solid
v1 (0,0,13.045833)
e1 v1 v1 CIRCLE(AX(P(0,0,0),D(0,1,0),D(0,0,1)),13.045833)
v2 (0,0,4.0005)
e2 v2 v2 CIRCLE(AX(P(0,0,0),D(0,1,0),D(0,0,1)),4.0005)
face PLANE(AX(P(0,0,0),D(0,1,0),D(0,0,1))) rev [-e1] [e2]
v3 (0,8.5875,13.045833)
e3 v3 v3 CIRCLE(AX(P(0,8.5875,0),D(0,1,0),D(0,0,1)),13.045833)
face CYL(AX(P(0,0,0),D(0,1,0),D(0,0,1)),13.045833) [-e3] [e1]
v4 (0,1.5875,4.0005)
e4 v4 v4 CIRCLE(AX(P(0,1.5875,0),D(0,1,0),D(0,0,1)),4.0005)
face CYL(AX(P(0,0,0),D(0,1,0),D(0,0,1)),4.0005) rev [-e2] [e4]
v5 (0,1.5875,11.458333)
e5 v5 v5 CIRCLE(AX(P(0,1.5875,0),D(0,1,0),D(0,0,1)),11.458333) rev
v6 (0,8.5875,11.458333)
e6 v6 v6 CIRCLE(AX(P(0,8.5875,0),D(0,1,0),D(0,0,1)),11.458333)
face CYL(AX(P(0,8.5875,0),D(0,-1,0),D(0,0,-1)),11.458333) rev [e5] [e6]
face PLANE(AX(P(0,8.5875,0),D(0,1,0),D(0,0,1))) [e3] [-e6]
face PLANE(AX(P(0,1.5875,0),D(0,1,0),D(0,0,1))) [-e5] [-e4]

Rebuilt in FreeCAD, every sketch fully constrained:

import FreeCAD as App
import Part
import Sketcher
from FreeCAD import Vector
Q = App.Units.Quantity

doc = App.newDocument("Part")
params = doc.addObject("Spreadsheet::Sheet", "Params")
for row, (alias, value) in enumerate([
    ("pad1_length", "0.0625 in"),
    ("pad2_length", "0.0625 in"),
    ("pad3_length", "7 mm"),
    ("sketch4_diameter", "0.315 in"),
], start=1):
    params.set(f"A{row}", alias)
    params.set(f"B{row}", "=" + value)
    params.setAlias(f"B{row}", alias)

body = doc.addObject("PartDesign::Body", "Body")

# Sketch on XZ plane
sketch1 = body.newObject("Sketcher::SketchObject", "Sketch")
sketch1.AttachmentSupport = (doc.getObject("XZ_Plane"), [""])
sketch1.MapMode = "FlatFace"
sketch1.addGeometry(Part.Circle(Vector(0, 0, 0), Vector(0, 0, 1), 11), False)
sketch1.addConstraint([
    Sketcher.Constraint("Coincident", 0, 3, -1, 1),
    Sketcher.Constraint("Diameter", 0, 22.916667),
])
pad1 = body.newObject("PartDesign::Pad", "Pad")
pad1.Profile = sketch1
pad1.setExpression("Length", "Params.pad1_length")
pad1.Reversed = True

# Sketch on XZ plane
sketch2 = body.newObject("Sketcher::SketchObject", "Sketch001")
sketch2.AttachmentSupport = (doc.getObject("XZ_Plane"), [""])
sketch2.MapMode = "FlatFace"
sketch2.AttachmentOffset = App.Placement(Vector(0, 0, -0.0625 * 25.4), App.Rotation())
sketch2.addGeometry(Part.Circle(Vector(0, 0, 0), Vector(0, 0, 1), 13), False)
sketch2.addConstraint([
    Sketcher.Constraint("Coincident", 0, 3, -1, 1),
    Sketcher.Constraint("Diameter", 0, 26.091667),
])
pad2 = body.newObject("PartDesign::Pad", "Pad001")
pad2.Profile = sketch2
pad2.setExpression("Length", "Params.pad2_length")

# Sketch on XZ plane
sketch3 = body.newObject("Sketcher::SketchObject", "Sketch002")
sketch3.AttachmentSupport = (doc.getObject("XZ_Plane"), [""])
sketch3.MapMode = "FlatFace"
sketch3.AttachmentOffset = App.Placement(Vector(0, 0, -0.0625 * 25.4), App.Rotation())
sketch3.addGeometry([
    Part.Circle(Vector(0, 0, 0), Vector(0, 0, 1), 13),
    Part.Circle(Vector(0, 0, 0), Vector(0, 0, 1), 11),
], False)
sketch3.addConstraint([
    Sketcher.Constraint("Coincident", 0, 3, -1, 1),
    Sketcher.Constraint("Coincident", 1, 3, -1, 1),
    Sketcher.Constraint("Diameter", 0, 26.091667),
    Sketcher.Constraint("Diameter", 1, 22.916667),
])
pad3 = body.newObject("PartDesign::Pad", "Pad002")
pad3.Profile = sketch3
pad3.setExpression("Length", "Params.pad3_length")
pad3.Reversed = True

# Sketch on XZ plane
sketch4 = body.newObject("Sketcher::SketchObject", "Sketch003")
sketch4.AttachmentSupport = (doc.getObject("XZ_Plane"), [""])
sketch4.MapMode = "FlatFace"
sketch4.AttachmentOffset = App.Placement(Vector(0, 0, -0.0625 * 25.4), App.Rotation())
sketch4.addGeometry(Part.Circle(Vector(0, 0, 0), Vector(0, 0, 1), 4), False)
sketch4.addConstraint([
    Sketcher.Constraint("Coincident", 0, 3, -1, 1),
    Sketcher.Constraint("Diameter", 0, Q("0.315 in")),
])
sketch4.setExpression("Constraints[1]", "Params.sketch4_diameter")
pocket1 = body.newObject("PartDesign::Pocket", "Pocket")
pocket1.Profile = sketch4
pocket1.Type = "ThroughAll"
pocket1.Reversed = True

doc.recompute()
